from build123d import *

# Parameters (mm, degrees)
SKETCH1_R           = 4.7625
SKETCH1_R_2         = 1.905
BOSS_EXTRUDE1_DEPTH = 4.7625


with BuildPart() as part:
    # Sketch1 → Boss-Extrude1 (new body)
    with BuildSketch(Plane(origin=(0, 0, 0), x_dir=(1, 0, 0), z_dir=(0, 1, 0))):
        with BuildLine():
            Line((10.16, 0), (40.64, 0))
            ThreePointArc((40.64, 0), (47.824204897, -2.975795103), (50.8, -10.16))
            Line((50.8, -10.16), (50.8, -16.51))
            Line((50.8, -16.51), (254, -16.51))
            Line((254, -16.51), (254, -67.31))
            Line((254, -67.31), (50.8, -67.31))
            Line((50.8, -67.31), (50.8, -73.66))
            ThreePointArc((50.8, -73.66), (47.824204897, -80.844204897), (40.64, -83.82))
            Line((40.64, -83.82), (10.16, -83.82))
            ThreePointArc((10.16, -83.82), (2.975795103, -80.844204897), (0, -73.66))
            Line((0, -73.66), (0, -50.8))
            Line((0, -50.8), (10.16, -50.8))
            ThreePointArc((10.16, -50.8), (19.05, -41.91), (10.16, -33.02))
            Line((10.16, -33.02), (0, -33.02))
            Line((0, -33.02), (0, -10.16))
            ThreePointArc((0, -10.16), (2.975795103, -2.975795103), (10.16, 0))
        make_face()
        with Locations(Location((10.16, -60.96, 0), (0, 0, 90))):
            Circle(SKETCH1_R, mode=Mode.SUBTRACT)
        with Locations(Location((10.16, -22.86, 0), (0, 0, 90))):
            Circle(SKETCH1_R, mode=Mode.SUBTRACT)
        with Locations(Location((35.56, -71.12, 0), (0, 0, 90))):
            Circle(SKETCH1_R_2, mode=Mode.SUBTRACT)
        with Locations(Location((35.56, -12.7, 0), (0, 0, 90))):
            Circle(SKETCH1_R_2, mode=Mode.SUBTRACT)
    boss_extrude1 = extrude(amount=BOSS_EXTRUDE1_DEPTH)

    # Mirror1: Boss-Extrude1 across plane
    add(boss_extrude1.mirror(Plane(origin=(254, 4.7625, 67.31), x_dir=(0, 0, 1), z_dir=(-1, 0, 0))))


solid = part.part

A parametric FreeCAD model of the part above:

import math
import FreeCAD as App
import Part
import Sketcher

V = App.Vector
Q = App.Units.Quantity

doc = App.newDocument("Part")
body = doc.addObject("PartDesign::Body", "Body")

# Sketch on XZ plane
sketch1 = doc.addObject("Sketcher::SketchObject", "Sketch")
body.addObject(sketch1)
sketch1.AttachmentSupport = (doc.XZ_Plane, [""])
sketch1.MapMode = "FlatFace"
sketch1.addGeometry(Part.LineSegment(V(40.6, 0, 0), V(10.2, 0, 0)), False)
sketch1.addGeometry(Part.ArcOfCircle(Part.Circle(V(10.2, 10.2, 0), V(0, 0, 1), 10.2), math.radians(180), math.radians(270)), False)
sketch1.addGeometry(Part.LineSegment(V(0, 10.2, 0), V(0, 33, 0)), False)
sketch1.addGeometry(Part.LineSegment(V(0, 33, 0), V(10.2, 33, 0)), False)
sketch1.addGeometry(Part.ArcOfCircle(Part.Circle(V(10.2, 41.9, 0), V(0, 0, 1), 8.9), math.radians(-90), math.radians(90)), False)
sketch1.addGeometry(Part.LineSegment(V(10.2, 50.8, 0), V(0, 50.8, 0)), False)
sketch1.addGeometry(Part.LineSegment(V(0, 50.8, 0), V(0, 73.7, 0)), False)
sketch1.addGeometry(Part.ArcOfCircle(Part.Circle(V(10.2, 73.7, 0), V(0, 0, 1), 10.2), math.radians(90), math.radians(180)), False)
sketch1.addGeometry(Part.LineSegment(V(10.2, 83.8, 0), V(40.6, 83.8, 0)), False)
sketch1.addGeometry(Part.ArcOfCircle(Part.Circle(V(40.6, 73.7, 0), V(0, 0, 1), 10.2), math.radians(0), math.radians(90)), False)
sketch1.addGeometry(Part.LineSegment(V(50.8, 73.7, 0), V(50.8, 67.3, 0)), False)
sketch1.addGeometry(Part.LineSegment(V(50.8, 67.3, 0), V(254, 67.3, 0)), False)
sketch1.addGeometry(Part.LineSegment(V(254, 67.3, 0), V(254, 16.5, 0)), False)
sketch1.addGeometry(Part.LineSegment(V(254, 16.5, 0), V(50.8, 16.5, 0)), False)
sketch1.addGeometry(Part.LineSegment(V(50.8, 16.5, 0), V(50.8, 10.2, 0)), False)
sketch1.addGeometry(Part.ArcOfCircle(Part.Circle(V(40.6, 10.2, 0), V(0, 0, 1), 10.2), math.radians(-90), math.radians(0)), False)
sketch1.addGeometry(Part.Circle(V(35.6, 71.1, 0), V(0, 0, 1), 1.9), False)
sketch1.addGeometry(Part.Circle(V(10.2, 61, 0), V(0, 0, 1), 4.8), False)
sketch1.addGeometry(Part.Circle(V(35.6, 12.7, 0), V(0, 0, 1), 1.9), False)
sketch1.addGeometry(Part.Circle(V(10.2, 22.9, 0), V(0, 0, 1), 4.8), False)
sketch1.addConstraint(Sketcher.Constraint("Tangent", 0, 2, 1, 2))
sketch1.addConstraint(Sketcher.Constraint("Tangent", 1, 1, 2, 1))
sketch1.addConstraint(Sketcher.Constraint("Coincident", 2, 2, 3, 1))
sketch1.addConstraint(Sketcher.Constraint("Tangent", 3, 2, 4, 1))
sketch1.addConstraint(Sketcher.Constraint("Tangent", 4, 2, 5, 1))
sketch1.addConstraint(Sketcher.Constraint("Coincident", 5, 2, 6, 1))
sketch1.addConstraint(Sketcher.Constraint("Tangent", 6, 2, 7, 2))
sketch1.addConstraint(Sketcher.Constraint("Tangent", 7, 1, 8, 1))
sketch1.addConstraint(Sketcher.Constraint("Tangent", 8, 2, 9, 2))
sketch1.addConstraint(Sketcher.Constraint("Tangent", 9, 1, 10, 1))
sketch1.addConstraint(Sketcher.Constraint("Coincident", 10, 2, 11, 1))
sketch1.addConstraint(Sketcher.Constraint("Coincident", 11, 2, 12, 1))
sketch1.addConstraint(Sketcher.Constraint("Coincident", 12, 2, 13, 1))
sketch1.addConstraint(Sketcher.Constraint("Coincident", 13, 2, 14, 1))
sketch1.addConstraint(Sketcher.Constraint("Tangent", 14, 2, 15, 2))
sketch1.addConstraint(Sketcher.Constraint("Tangent", 15, 1, 0, 1))
sketch1.addConstraint(Sketcher.Constraint("Horizontal", 0))
sketch1.addConstraint(Sketcher.Constraint("Vertical", 2))
sketch1.addConstraint(Sketcher.Constraint("Horizontal", 3))
sketch1.addConstraint(Sketcher.Constraint("Horizontal", 5))
sketch1.addConstraint(Sketcher.Constraint("Vertical", 6))
sketch1.addConstraint(Sketcher.Constraint("Horizontal", 8))
sketch1.addConstraint(Sketcher.Constraint("Vertical", 10))
sketch1.addConstraint(Sketcher.Constraint("Horizontal", 11))
sketch1.addConstraint(Sketcher.Constraint("Vertical", 12))
sketch1.addConstraint(Sketcher.Constraint("Horizontal", 13))
sketch1.addConstraint(Sketcher.Constraint("Vertical", 14))
sketch1.addConstraint(Sketcher.Constraint("Equal", 1, 7))
sketch1.addConstraint(Sketcher.Constraint("Equal", 7, 9))
sketch1.addConstraint(Sketcher.Constraint("Equal", 9, 15))
sketch1.addConstraint(Sketcher.Constraint("Equal", 16, 18))
sketch1.addConstraint(Sketcher.Constraint("Equal", 17, 19))
sketch1.addConstraint(Sketcher.Constraint("PointOnObject", 0, 2, -1))
sketch1.addConstraint(Sketcher.Constraint("PointOnObject", 1, 1, -2))
sketch1.addConstraint(Sketcher.Constraint("PointOnObject", 5, 2, -2))
sketch1.addConstraint(Sketcher.Constraint("Vertical", 1, 3, 4, 3))
sketch1.addConstraint(Sketcher.Constraint("Vertical", 9, 3, 15, 3))
sketch1.addConstraint(Sketcher.Constraint("Vertical", 7, 3, 17, 3))
sketch1.addConstraint(Sketcher.Constraint("Vertical", 16, 3, 18, 3))
sketch1.addConstraint(Sketcher.Constraint("Vertical", 17, 3, 19, 3))
sketch1.addConstraint(Sketcher.Constraint("Equal", 2, 6))
sketch1.addConstraint(Sketcher.Constraint("Equal", 10, 14))
sketch1.addConstraint(Sketcher.Constraint("Radius", 1, Q("0.4 in")))
sketch1.addConstraint(Sketcher.Constraint("Diameter", 16, Q("0.15 in")))
sketch1.addConstraint(Sketcher.Constraint("DistanceX", 11, 1, 11, 2, Q("8 in")))
sketch1.addConstraint(Sketcher.Constraint("DistanceY", 12, 2, 12, 1, Q("2 in")))
sketch1.addConstraint(Sketcher.Constraint("Radius", 4, Q("0.35 in")))
sketch1.addConstraint(Sketcher.Constraint("Diameter", 17, Q("0.375 in")))
sketch1.addConstraint(Sketcher.Constraint("DistanceX", 0, 2, 0, 1, Q("1.2 in")))
sketch1.addConstraint(Sketcher.Constraint("DistanceY", 2, 1, 2, 2, Q("0.9 in")))
sketch1.addConstraint(Sketcher.Constraint("DistanceX", 7, 3, 16, 3, Q("1 in")))
sketch1.addConstraint(Sketcher.Constraint("DistanceY", 1, 3, 17, 3, Q("2 in")))
sketch1.addConstraint(Sketcher.Constraint("DistanceY", -1, 1, 16, 3, Q("2.8 in")))
sketch1.addConstraint(Sketcher.Constraint("DistanceY", -1, 1, 18, 3, Q("0.5 in")))
sketch1.addConstraint(Sketcher.Constraint("DistanceY", -1, 1, 19, 3, Q("0.9 in")))
pad1 = doc.addObject("PartDesign::Pad", "Pad")
body.addObject(pad1)
pad1.Profile = sketch1
pad1.Length = Q("0.1875 in")
pad1.Reversed = True
doc.recompute()

datumplane = doc.addObject("PartDesign::Plane", "DatumPlane")
body.addObject(datumplane)
datumplane.AttachmentSupport = (doc.YZ_Plane, [""])
datumplane.MapMode = "FlatFace"
datumplane.AttachmentOffset = App.Placement(V(0, 0, 10 * 25.4), App.Rotation())
mirrored = doc.addObject("PartDesign::Mirrored", "Mirrored")
body.addObject(mirrored)
mirrored.Originals = [pad1]
mirrored.MirrorPlane = (datumplane, [""])
body.Tip = mirrored

doc.recompute()
